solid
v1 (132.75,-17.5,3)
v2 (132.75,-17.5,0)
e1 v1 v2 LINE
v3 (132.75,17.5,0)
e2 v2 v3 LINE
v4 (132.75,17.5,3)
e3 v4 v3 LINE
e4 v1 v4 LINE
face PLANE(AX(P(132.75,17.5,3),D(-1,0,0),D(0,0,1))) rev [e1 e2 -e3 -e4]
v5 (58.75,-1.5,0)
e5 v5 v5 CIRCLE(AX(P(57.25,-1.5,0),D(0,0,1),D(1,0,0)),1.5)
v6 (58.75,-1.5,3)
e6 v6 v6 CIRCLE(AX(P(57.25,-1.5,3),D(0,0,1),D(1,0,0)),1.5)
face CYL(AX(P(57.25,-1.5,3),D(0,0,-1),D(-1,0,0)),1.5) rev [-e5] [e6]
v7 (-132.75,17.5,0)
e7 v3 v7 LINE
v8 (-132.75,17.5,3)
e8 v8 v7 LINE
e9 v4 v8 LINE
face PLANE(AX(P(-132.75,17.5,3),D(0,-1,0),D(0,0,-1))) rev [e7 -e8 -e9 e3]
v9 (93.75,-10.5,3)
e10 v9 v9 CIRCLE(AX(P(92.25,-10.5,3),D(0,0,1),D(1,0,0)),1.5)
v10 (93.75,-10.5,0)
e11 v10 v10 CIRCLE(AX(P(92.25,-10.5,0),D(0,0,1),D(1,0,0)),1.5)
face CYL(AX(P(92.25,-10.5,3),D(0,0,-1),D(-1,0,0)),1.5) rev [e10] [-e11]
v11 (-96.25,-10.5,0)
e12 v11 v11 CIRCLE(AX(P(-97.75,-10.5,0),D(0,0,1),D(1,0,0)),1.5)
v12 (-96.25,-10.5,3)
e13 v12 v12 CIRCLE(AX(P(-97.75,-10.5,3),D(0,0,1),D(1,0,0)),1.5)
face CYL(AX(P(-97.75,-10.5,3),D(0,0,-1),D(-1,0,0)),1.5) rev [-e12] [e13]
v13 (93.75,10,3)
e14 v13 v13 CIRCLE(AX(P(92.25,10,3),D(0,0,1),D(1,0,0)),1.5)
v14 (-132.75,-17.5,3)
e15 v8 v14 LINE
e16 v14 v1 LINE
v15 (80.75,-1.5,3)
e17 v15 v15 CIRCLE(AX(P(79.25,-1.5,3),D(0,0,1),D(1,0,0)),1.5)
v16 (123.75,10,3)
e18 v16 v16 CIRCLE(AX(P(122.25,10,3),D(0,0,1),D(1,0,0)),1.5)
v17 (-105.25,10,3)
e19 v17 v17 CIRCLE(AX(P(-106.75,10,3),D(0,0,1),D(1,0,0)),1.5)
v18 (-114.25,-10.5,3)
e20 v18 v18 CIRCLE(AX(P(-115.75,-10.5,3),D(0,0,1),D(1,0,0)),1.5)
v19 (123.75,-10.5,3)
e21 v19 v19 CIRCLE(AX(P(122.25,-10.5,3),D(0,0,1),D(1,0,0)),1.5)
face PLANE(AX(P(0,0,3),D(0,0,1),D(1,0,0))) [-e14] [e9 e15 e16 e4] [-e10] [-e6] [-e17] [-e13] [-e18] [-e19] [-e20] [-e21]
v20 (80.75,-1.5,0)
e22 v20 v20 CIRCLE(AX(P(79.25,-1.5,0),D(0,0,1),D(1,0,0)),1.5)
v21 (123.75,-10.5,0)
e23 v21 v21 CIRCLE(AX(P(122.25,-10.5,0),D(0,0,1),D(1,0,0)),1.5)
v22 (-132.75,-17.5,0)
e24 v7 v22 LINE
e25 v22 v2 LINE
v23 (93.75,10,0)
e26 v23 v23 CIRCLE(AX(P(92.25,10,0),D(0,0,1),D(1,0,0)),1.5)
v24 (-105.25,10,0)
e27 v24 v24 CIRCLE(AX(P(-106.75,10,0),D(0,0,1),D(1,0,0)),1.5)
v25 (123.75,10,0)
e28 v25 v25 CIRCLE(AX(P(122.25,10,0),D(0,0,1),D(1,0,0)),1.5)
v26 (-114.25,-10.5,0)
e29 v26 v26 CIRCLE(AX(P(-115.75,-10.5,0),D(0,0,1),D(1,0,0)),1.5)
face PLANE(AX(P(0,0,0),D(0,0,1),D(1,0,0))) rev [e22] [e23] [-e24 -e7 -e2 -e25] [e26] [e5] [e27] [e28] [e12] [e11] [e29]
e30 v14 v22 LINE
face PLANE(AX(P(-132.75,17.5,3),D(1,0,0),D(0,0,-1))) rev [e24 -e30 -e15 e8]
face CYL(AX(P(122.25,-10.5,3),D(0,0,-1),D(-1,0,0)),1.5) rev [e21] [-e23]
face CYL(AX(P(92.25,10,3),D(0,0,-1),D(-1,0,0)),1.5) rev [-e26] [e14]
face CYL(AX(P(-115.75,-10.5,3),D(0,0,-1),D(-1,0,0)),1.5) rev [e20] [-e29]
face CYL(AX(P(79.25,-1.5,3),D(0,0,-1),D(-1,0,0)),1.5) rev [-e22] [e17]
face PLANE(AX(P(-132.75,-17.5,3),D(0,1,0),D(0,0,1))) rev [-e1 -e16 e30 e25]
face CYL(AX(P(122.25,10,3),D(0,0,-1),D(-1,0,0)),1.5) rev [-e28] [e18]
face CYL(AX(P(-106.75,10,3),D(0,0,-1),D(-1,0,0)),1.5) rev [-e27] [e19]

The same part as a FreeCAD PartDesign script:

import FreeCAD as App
import Part
import Sketcher

doc = App.newDocument("Part")
body = doc.addObject("PartDesign::Body", "Body")

# Sketch on XY plane
sketch1 = doc.addObject("Sketcher::SketchObject", "Sketch")
body.addObject(sketch1)
sketch1.AttachmentSupport = (doc.XY_Plane, [""])
sketch1.MapMode = "FlatFace"
sketch1.addGeometry([
    Part.LineSegment(App.Vector(-132.8, 17.5, 0), App.Vector(-132.8, -17.5, 0)),  # 0
    Part.LineSegment(App.Vector(-132.8, -17.5, 0), App.Vector(132.8, -17.5, 0)),  # 1
    Part.LineSegment(App.Vector(132.8, -17.5, 0), App.Vector(132.8, 17.5, 0)),  # 2
    Part.LineSegment(App.Vector(132.8, 17.5, 0), App.Vector(-132.8, 17.5, 0)),  # 3
    Part.Circle(App.Vector(-115.8, -10.5, 0), App.Vector(0, 0, 1), 1.5),  # 4
    Part.Circle(App.Vector(-97.8, -10.5, 0), App.Vector(0, 0, 1), 1.5),  # 5
    Part.Circle(App.Vector(92.2, -10.5, 0), App.Vector(0, 0, 1), 1.5),  # 6
    Part.Circle(App.Vector(122.2, -10.5, 0), App.Vector(0, 0, 1), 1.5),  # 7
    Part.Circle(App.Vector(57.2, -1.5, 0), App.Vector(0, 0, 1), 1.5),  # 8
    Part.Circle(App.Vector(79.2, -1.5, 0), App.Vector(0, 0, 1), 1.5),  # 9
    Part.Circle(App.Vector(-106.8, 10, 0), App.Vector(0, 0, 1), 1.5),  # 10
    Part.Circle(App.Vector(92.2, 10, 0), App.Vector(0, 0, 1), 1.5),  # 11
    Part.Circle(App.Vector(122.2, 10, 0), App.Vector(0, 0, 1), 1.5),  # 12
], False)
sketch1.addConstraint([
    Sketcher.Constraint("Coincident", 0, 2, 1, 1),
    Sketcher.Constraint("Coincident", 1, 2, 2, 1),
    Sketcher.Constraint("Coincident", 2, 2, 3, 1),
    Sketcher.Constraint("Coincident", 3, 2, 0, 1),
    Sketcher.Constraint("Vertical", 0),
    Sketcher.Constraint("Horizontal", 1),
    Sketcher.Constraint("Vertical", 2),
    Sketcher.Constraint("Horizontal", 3),
    Sketcher.Constraint("Equal", 4, 5),
    Sketcher.Constraint("Equal", 5, 6),
    Sketcher.Constraint("Equal", 6, 7),
    Sketcher.Constraint("Equal", 7, 8),
    Sketcher.Constraint("Equal", 8, 9),
    Sketcher.Constraint("Equal", 9, 10),
    Sketcher.Constraint("Equal", 10, 11),
    Sketcher.Constraint("Equal", 11, 12),
    Sketcher.Constraint("Symmetric", 0, 2, 2, 2, -1, 1),
    Sketcher.Constraint("Horizontal", 4, 3, 5, 3),
    Sketcher.Constraint("Horizontal", 5, 3, 6, 3),
    Sketcher.Constraint("Horizontal", 6, 3, 7, 3),
    Sketcher.Constraint("Horizontal", 8, 3, 9, 3),
    Sketcher.Constraint("Horizontal", 10, 3, 11, 3),
    Sketcher.Constraint("Horizontal", 11, 3, 12, 3),
    Sketcher.Constraint("Vertical", 6, 3, 11, 3),
    Sketcher.Constraint("Vertical", 7, 3, 12, 3),
    Sketcher.Constraint("Diameter", 4, 3.0),
    Sketcher.Constraint("DistanceY", 0, 2, 0, 1, 35.0),
    Sketcher.Constraint("DistanceX", 1, 1, 1, 2, 265.5),
    Sketcher.Constraint("DistanceY", -1, 1, 10, 3, 10.0),
    Sketcher.Constraint("DistanceX", 4, 3, 5, 3, 18.0),
    Sketcher.Constraint("DistanceX", 5, 3, 6, 3, 190.0),
    Sketcher.Constraint("DistanceX", 6, 3, 7, 3, 30.0),
    Sketcher.Constraint("DistanceX", 8, 3, 6, 3, 35.0),
    Sketcher.Constraint("DistanceY", 6, 3, 8, 3, 9.0),
    Sketcher.Constraint("DistanceX", 9, 3, 6, 3, 13.0),
    Sketcher.Constraint("DistanceX", 4, 3, 10, 3, 9.0),
    Sketcher.Constraint("DistanceX", 0, 2, 4, 3, 17.0),
    Sketcher.Constraint("DistanceY", 0, 2, 4, 3, 7.0),
])
pad1 = doc.addObject("PartDesign::Pad", "Pad")
body.addObject(pad1)
pad1.Profile = sketch1
pad1.Length = 3

doc.recompute()
